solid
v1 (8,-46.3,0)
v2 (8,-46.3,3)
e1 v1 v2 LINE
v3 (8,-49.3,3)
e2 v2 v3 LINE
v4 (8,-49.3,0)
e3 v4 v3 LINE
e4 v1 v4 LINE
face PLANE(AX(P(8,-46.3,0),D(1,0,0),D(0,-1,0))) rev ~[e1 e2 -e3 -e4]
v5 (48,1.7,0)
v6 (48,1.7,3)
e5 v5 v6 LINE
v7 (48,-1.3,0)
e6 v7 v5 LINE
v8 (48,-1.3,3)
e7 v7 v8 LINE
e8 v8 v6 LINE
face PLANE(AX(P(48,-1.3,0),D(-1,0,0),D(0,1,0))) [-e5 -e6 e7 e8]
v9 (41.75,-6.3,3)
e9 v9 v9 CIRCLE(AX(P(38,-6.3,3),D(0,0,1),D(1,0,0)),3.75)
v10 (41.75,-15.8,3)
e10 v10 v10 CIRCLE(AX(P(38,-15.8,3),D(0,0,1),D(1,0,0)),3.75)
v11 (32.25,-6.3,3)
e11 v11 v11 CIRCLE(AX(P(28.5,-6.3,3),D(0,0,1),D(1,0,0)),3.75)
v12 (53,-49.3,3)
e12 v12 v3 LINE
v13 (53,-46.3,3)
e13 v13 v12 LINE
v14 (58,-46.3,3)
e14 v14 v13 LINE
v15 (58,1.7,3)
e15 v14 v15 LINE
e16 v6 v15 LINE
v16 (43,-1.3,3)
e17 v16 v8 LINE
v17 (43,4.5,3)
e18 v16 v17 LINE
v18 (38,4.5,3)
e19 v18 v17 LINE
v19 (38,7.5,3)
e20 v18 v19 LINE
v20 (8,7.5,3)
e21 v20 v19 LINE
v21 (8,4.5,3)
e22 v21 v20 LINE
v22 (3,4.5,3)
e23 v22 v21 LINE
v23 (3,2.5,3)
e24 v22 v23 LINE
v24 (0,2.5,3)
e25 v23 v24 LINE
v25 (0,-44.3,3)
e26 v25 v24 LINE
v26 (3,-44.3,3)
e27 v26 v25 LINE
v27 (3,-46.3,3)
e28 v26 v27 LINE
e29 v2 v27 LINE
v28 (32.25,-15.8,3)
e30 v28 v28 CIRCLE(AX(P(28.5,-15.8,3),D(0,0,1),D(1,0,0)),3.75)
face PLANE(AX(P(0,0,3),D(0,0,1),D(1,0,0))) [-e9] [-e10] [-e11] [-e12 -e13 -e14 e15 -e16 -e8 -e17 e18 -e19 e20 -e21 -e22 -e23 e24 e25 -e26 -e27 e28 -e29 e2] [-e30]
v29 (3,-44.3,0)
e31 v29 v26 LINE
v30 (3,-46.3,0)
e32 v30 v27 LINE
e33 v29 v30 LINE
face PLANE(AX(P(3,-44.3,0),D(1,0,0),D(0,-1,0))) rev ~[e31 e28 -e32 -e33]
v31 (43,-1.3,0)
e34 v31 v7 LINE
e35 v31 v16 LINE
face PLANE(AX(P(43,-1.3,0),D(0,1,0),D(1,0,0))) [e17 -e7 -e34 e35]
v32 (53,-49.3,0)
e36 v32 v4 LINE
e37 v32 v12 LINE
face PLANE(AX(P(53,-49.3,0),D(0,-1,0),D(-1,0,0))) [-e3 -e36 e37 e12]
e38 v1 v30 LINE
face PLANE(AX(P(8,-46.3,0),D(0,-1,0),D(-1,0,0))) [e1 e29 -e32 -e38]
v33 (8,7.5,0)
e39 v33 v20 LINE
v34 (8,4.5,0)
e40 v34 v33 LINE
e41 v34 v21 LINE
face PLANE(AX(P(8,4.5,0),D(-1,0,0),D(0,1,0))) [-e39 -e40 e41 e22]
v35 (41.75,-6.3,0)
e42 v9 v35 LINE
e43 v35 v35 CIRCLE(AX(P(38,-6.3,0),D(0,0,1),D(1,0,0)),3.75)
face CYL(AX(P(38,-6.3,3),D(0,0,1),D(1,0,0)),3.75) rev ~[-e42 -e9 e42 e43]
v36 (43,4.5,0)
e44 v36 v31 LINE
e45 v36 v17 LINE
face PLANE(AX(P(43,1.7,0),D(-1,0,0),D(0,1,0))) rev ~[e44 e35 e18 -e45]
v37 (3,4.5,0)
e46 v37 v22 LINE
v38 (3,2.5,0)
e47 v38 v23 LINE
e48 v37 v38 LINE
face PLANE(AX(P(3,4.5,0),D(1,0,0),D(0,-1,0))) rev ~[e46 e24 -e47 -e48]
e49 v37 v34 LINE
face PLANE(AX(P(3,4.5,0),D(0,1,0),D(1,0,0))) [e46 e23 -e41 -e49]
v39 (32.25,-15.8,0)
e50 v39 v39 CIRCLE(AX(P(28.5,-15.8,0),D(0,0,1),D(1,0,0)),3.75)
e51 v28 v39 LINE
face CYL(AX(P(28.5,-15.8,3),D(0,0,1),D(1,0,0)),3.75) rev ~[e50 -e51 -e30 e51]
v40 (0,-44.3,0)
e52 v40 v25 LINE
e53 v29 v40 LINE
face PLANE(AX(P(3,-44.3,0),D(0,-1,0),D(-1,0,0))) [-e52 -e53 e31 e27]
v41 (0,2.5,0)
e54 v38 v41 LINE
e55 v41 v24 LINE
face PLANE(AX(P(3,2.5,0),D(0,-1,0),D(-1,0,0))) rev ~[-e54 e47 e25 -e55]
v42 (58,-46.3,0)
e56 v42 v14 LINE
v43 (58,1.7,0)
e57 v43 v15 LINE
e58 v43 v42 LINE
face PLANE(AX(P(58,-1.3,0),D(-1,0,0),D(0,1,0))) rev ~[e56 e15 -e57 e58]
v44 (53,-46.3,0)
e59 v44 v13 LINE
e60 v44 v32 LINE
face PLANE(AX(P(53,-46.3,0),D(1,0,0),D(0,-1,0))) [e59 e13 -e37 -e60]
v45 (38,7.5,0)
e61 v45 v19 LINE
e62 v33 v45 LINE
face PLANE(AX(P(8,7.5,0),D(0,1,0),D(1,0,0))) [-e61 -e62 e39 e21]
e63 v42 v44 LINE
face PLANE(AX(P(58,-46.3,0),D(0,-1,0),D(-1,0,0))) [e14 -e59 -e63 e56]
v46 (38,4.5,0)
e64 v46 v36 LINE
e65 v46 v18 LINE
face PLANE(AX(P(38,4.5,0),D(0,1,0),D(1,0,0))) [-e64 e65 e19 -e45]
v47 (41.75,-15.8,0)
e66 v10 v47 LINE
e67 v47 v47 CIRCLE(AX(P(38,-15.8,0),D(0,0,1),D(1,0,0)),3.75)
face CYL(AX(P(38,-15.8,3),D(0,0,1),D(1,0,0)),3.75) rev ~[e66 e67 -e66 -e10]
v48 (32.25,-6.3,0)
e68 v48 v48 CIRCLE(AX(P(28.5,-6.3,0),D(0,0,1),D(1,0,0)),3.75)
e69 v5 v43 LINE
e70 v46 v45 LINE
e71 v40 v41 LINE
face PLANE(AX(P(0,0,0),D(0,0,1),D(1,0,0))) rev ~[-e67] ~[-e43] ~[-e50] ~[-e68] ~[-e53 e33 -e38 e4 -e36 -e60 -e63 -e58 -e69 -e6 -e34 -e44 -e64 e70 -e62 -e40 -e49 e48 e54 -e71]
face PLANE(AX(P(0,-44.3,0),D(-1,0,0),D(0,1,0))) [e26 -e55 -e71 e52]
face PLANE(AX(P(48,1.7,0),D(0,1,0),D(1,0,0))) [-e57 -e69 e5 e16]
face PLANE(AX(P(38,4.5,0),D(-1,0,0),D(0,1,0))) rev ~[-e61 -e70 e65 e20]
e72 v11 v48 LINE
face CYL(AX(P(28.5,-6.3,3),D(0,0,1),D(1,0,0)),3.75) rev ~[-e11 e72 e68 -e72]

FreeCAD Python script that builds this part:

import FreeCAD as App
import Part
import Sketcher
from FreeCAD import Vector
Q = App.Units.Quantity

doc = App.newDocument("Part")
body = doc.addObject("PartDesign::Body", "Body")

sketch1 = doc.addObject("Sketcher::SketchObject", "Sketch")
body.addObject(sketch1)
sketch1.AttachmentSupport = (doc.XY_Plane, [""])
sketch1.MapMode = "FlatFace"
sketch1.addGeometry([
    Part.LineSegment(Vector(38, 7.5, 0), Vector(8, 7.5, 0)),
    Part.LineSegment(Vector(8, 7.5, 0), Vector(8, 4.5, 0)),
    Part.LineSegment(Vector(8, 4.5, 0), Vector(3, 4.5, 0)),
    Part.LineSegment(Vector(3, 4.5, 0), Vector(3, 2.5, 0)),
    Part.LineSegment(Vector(3, 2.5, 0), Vector(0, 2.5, 0)),
    Part.LineSegment(Vector(0, 2.5, 0), Vector(0, -44.3, 0)),
    Part.LineSegment(Vector(0, -44.3, 0), Vector(3, -44.3, 0)),
    Part.LineSegment(Vector(3, -44.3, 0), Vector(3, -46.3, 0)),
    Part.LineSegment(Vector(3, -46.3, 0), Vector(8, -46.3, 0)),
    Part.LineSegment(Vector(8, -46.3, 0), Vector(8, -49.3, 0)),
    Part.LineSegment(Vector(8, -49.3, 0), Vector(53, -49.3, 0)),
    Part.LineSegment(Vector(53, -49.3, 0), Vector(53, -46.3, 0)),
    Part.LineSegment(Vector(53, -46.3, 0), Vector(58, -46.3, 0)),
    Part.LineSegment(Vector(58, -46.3, 0), Vector(58, 1.7, 0)),
    Part.LineSegment(Vector(58, 1.7, 0), Vector(48, 1.7, 0)),
    Part.LineSegment(Vector(48, 1.7, 0), Vector(48, -1.3, 0)),
    Part.LineSegment(Vector(48, -1.3, 0), Vector(43, -1.3, 0)),
    Part.LineSegment(Vector(43, -1.3, 0), Vector(43, 4.5, 0)),
    Part.LineSegment(Vector(43, 4.5, 0), Vector(38, 4.5, 0)),
    Part.LineSegment(Vector(38, 4.5, 0), Vector(38, 7.5, 0)),
], False)
sketch1.addConstraint([
    Sketcher.Constraint("Coincident", 0, 2, 1, 1),
    Sketcher.Constraint("Coincident", 1, 2, 2, 1),
    Sketcher.Constraint("Coincident", 2, 2, 3, 1),
    Sketcher.Constraint("Coincident", 3, 2, 4, 1),
    Sketcher.Constraint("Coincident", 4, 2, 5, 1),
    Sketcher.Constraint("Coincident", 5, 2, 6, 1),
    Sketcher.Constraint("Coincident", 6, 2, 7, 1),
    Sketcher.Constraint("Coincident", 7, 2, 8, 1),
    Sketcher.Constraint("Coincident", 8, 2, 9, 1),
    Sketcher.Constraint("Coincident", 9, 2, 10, 1),
    Sketcher.Constraint("Coincident", 10, 2, 11, 1),
    Sketcher.Constraint("Coincident", 11, 2, 12, 1),
    Sketcher.Constraint("Coincident", 12, 2, 13, 1),
    Sketcher.Constraint("Coincident", 13, 2, 14, 1),
    Sketcher.Constraint("Coincident", 14, 2, 15, 1),
    Sketcher.Constraint("Coincident", 15, 2, 16, 1),
    Sketcher.Constraint("Coincident", 16, 2, 17, 1),
    Sketcher.Constraint("Coincident", 17, 2, 18, 1),
    Sketcher.Constraint("Coincident", 18, 2, 19, 1),
    Sketcher.Constraint("Coincident", 19, 2, 0, 1),
    Sketcher.Constraint("Horizontal", 0),
    Sketcher.Constraint("Vertical", 1),
    Sketcher.Constraint("Horizontal", 2),
    Sketcher.Constraint("Vertical", 3),
    Sketcher.Constraint("Horizontal", 4),
    Sketcher.Constraint("Vertical", 5),
    Sketcher.Constraint("Horizontal", 6),
    Sketcher.Constraint("Vertical", 7),
    Sketcher.Constraint("Horizontal", 8),
    Sketcher.Constraint("Vertical", 9),
    Sketcher.Constraint("Horizontal", 10),
    Sketcher.Constraint("Vertical", 11),
    Sketcher.Constraint("Horizontal", 12),
    Sketcher.Constraint("Vertical", 13),
    Sketcher.Constraint("Horizontal", 14),
    Sketcher.Constraint("Vertical", 15),
    Sketcher.Constraint("Horizontal", 16),
    Sketcher.Constraint("Vertical", 17),
    Sketcher.Constraint("Horizontal", 18),
    Sketcher.Constraint("Vertical", 19),
    Sketcher.Constraint("PointOnObject", 4, 2, -2),
    Sketcher.Constraint("Horizontal", 8, 2, 11, 2),
    Sketcher.Constraint("Horizontal", 2, 2, 17, 2),
    Sketcher.Constraint("Vertical", 3, 2, 6, 2),
    Sketcher.Constraint("Vertical", 1, 2, 8, 2),
    Sketcher.Constraint("Equal", 8, 12),
    Sketcher.Constraint("Equal", 12, 16),
    Sketcher.Constraint("Equal", 16, 18),
    Sketcher.Constraint("Equal", 6, 1),
    Sketcher.Constraint("Equal", 3, 7),
    Sketcher.Constraint("Equal", 1, 9),
    Sketcher.Constraint("Equal", 11, 15),
    Sketcher.Constraint("DistanceX", 0, 2, 0, 1, Q("30 mm")),
    Sketcher.Constraint("DistanceX", 2, 2, 2, 1, Q("5 mm")),
    Sketcher.Constraint("DistanceX", 4, 2, 4, 1, Q("3 mm")),
    Sketcher.Constraint("DistanceX", 10, 1, 10, 2, Q("45 mm")),
    Sketcher.Constraint("DistanceY", 3, 2, 3, 1, Q("2 mm")),
    Sketcher.Constraint("DistanceY", 13, 1, 13, 2, Q("48 mm")),
    Sketcher.Constraint("DistanceY", 5, 2, 5, 1, Q("46.8 mm")),
    Sketcher.Constraint("DistanceY", -1, 1, 0, 2, Q("7.5 mm")),
])
pad1 = doc.addObject("PartDesign::Pad", "Pad")
body.addObject(pad1)
pad1.Profile = sketch1
pad1.Length = 3

sketch2 = doc.addObject("Sketcher::SketchObject", "Sketch001")
body.addObject(sketch2)
sketch2.AttachmentSupport = (doc.XY_Plane, [""])
sketch2.MapMode = "FlatFace"
sketch2.AttachmentOffset = App.Placement(Vector(0, 0, 3), App.Rotation())
sketch2.addGeometry([
    Part.Circle(Vector(38, -6.3, 0), Vector(0, 0, 1), 3.75),
    Part.Circle(Vector(38, -15.8, 0), Vector(0, 0, 1), 3.75),
    Part.Circle(Vector(28.5, -15.8, 0), Vector(0, 0, 1), 3.75),
    Part.Circle(Vector(28.5, -6.3, 0), Vector(0, 0, 1), 3.75),
], False)
sketch2.addConstraint([
    Sketcher.Constraint("Equal", 0, 1),
    Sketcher.Constraint("Equal", 1, 2),
    Sketcher.Constraint("Equal", 2, 3),
    Sketcher.Constraint("Horizontal", 1, 3, 2, 3),
    Sketcher.Constraint("Horizontal", 0, 3, 3, 3),
    Sketcher.Constraint("Vertical", 0, 3, 1, 3),
    Sketcher.Constraint("Vertical", 2, 3, 3, 3),
    Sketcher.Constraint("Diameter", 0, Q("7.5 mm")),
    Sketcher.Constraint("DistanceY", 1, 3, 0, 3, Q("9.5 mm")),
    Sketcher.Constraint("DistanceX", 2, 3, 1, 3, Q("9.5 mm")),
    Sketcher.Constraint("DistanceX", -1, 1, 0, 3, Q("38 mm")),
    Sketcher.Constraint("DistanceY", 0, 3, -1, 1, Q("6.3 mm")),
])
pocket1 = doc.addObject("PartDesign::Pocket", "Pocket")
body.addObject(pocket1)
pocket1.Profile = sketch2
pocket1.Length = 3

doc.recompute()
